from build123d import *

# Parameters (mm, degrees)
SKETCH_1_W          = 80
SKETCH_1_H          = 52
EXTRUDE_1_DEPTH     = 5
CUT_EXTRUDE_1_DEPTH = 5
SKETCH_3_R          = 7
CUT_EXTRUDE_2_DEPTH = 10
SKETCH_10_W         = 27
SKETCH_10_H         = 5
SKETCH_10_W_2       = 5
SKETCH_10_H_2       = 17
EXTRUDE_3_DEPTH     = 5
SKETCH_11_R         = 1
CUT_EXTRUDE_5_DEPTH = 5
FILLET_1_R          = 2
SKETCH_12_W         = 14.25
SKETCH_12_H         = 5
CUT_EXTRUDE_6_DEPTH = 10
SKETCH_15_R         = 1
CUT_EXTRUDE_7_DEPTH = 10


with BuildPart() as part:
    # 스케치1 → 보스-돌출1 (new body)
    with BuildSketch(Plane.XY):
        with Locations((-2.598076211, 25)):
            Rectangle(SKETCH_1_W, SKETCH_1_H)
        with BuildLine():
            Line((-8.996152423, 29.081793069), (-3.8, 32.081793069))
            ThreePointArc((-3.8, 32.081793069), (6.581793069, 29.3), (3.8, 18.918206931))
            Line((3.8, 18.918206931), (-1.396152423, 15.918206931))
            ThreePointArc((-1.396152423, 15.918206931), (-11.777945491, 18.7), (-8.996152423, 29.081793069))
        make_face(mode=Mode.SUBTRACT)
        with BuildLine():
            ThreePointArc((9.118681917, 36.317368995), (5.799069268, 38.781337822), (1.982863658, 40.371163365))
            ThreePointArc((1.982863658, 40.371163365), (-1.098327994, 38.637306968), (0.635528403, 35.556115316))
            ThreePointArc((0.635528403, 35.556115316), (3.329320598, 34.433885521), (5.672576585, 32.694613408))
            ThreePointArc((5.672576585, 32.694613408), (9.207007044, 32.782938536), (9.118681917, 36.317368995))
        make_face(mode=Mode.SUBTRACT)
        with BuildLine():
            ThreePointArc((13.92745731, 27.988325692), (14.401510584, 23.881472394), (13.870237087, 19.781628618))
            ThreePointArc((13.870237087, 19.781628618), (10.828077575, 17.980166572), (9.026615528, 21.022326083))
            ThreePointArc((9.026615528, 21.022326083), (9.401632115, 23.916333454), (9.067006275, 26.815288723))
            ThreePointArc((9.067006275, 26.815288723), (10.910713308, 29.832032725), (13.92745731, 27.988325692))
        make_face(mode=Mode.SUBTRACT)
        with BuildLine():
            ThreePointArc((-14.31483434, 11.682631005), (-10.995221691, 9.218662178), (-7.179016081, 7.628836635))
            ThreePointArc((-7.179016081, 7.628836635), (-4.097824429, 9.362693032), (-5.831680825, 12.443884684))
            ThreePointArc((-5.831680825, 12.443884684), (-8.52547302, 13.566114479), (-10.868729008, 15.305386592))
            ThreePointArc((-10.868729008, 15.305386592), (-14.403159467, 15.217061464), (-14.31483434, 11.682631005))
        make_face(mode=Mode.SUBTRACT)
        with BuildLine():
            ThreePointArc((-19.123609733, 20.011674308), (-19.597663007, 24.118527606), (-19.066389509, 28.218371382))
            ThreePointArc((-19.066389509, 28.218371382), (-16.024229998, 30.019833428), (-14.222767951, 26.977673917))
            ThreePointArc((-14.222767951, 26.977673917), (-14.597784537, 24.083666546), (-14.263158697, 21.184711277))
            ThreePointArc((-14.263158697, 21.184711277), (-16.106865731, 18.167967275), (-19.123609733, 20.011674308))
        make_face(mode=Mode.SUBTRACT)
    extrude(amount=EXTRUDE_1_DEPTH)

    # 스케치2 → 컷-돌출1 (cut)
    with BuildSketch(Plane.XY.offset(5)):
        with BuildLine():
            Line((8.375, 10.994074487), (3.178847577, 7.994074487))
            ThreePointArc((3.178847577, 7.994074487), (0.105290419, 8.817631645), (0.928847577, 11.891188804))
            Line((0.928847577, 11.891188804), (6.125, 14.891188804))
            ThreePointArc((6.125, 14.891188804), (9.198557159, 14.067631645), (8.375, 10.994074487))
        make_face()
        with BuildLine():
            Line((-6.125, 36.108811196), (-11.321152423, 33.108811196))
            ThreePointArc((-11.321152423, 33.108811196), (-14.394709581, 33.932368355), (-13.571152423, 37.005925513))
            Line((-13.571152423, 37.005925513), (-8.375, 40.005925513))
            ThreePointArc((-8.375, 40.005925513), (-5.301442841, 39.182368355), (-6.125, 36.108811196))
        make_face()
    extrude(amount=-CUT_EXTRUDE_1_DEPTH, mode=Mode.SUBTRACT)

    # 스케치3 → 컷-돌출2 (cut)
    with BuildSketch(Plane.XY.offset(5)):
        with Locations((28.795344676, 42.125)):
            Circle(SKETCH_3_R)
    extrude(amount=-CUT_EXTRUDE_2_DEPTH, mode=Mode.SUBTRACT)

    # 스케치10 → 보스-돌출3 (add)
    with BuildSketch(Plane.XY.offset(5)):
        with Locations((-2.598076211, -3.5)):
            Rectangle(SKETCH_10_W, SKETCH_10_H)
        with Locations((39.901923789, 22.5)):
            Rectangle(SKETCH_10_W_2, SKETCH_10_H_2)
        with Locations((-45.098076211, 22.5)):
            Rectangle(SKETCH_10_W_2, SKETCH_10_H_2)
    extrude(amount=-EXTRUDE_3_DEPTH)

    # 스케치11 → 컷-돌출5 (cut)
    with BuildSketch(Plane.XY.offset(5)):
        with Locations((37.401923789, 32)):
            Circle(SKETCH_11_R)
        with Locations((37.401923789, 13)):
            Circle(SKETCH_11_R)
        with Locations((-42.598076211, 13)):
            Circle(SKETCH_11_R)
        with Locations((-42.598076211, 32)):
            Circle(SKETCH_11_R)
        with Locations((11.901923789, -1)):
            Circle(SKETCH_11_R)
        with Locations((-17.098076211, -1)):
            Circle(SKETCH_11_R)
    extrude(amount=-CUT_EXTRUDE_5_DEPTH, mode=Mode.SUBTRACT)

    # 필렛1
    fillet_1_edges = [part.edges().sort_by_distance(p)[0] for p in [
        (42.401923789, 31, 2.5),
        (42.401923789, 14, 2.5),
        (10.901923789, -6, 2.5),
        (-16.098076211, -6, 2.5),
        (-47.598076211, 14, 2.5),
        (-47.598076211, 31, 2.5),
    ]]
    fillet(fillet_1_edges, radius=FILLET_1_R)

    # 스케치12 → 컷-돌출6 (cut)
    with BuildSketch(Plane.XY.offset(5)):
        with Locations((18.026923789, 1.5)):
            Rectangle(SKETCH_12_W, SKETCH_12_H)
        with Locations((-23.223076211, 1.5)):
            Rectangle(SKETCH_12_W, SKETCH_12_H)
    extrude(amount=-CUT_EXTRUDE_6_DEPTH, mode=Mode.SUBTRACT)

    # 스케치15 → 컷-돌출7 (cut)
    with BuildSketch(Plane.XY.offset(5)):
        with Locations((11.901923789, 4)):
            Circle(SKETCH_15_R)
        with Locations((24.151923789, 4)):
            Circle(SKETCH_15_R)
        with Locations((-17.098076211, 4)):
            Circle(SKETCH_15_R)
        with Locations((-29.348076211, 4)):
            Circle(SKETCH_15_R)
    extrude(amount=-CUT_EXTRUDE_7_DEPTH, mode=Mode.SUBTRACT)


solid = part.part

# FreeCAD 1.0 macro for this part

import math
import FreeCAD as App
import Part
import Sketcher
from FreeCAD import Vector
Q = App.Units.Quantity


def edges_at(feature, points):
    """Names of the edges that pass closest to the given points."""
    edges = feature.Shape.Edges
    near = lambda p: min(range(len(edges)), key=lambda i: edges[i].distToShape(Part.Vertex(*p))[0])
    return sorted({f"Edge{near(p) + 1}" for p in points})


def add_polygon(sketch, points):
    """Adds a closed chain of lines whose ends are joined by coincident constraints."""
    first, n = sketch.GeometryCount, len(points)
    for a, b in zip(points, points[1:] + points[:1]):
        sketch.addGeometry(Part.LineSegment(App.Vector(*a, 0), App.Vector(*b, 0)), False)
    for i in range(n):
        sketch.addConstraint(Sketcher.Constraint("Coincident", first + i, 2, first + (i + 1) % n, 1))

doc = App.newDocument("Part")
body = doc.addObject("PartDesign::Body", "Body")

sketch1 = doc.addObject("Sketcher::SketchObject", "Sketch")
body.addObject(sketch1)
sketch1.AttachmentSupport = (doc.XY_Plane, [""])
sketch1.MapMode = "FlatFace"
add_polygon(sketch1, [(-42.598076, 51), (-42.598076, -1), (37.401924, -1), (37.401924, 51)])
sketch1.addGeometry(Part.ArcOfCircle(Part.Circle(Vector(-2.598076, 24, 0), Vector(0, 0, 1), 17), math.radians(-133.568481), math.radians(-105.632556)), False)
sketch1.addGeometry(Part.ArcOfCircle(Part.Circle(Vector(-12.591782, 13.494009, 0), Vector(0, 0, 1), 2.5), math.radians(46.431519), math.radians(226.431519)), False)
sketch1.addGeometry(Part.ArcOfCircle(Part.Circle(Vector(-2.598076, 24, 0), Vector(0, 0, 1), 12), math.radians(-133.568481), math.radians(-105.632556)), False)
sketch1.addGeometry(Part.ArcOfCircle(Part.Circle(Vector(-6.505348, 10.036361, 0), Vector(0, 0, 1), 2.5), math.radians(-105.632556), math.radians(74.367444)), False)
sketch1.addGeometry(Part.ArcOfCircle(Part.Circle(Vector(11.497232, 27.401807, 0), Vector(0, 0, 1), 2.5), math.radians(13.568481), math.radians(193.568481)), False)
sketch1.addGeometry(Part.ArcOfCircle(Part.Circle(Vector(-2.598076, 24, 0), Vector(0, 0, 1), 17), math.radians(-14.367444), math.radians(13.568481)), False)
sketch1.addGeometry(Part.ArcOfCircle(Part.Circle(Vector(11.448426, 20.401977, 0), Vector(0, 0, 1), 2.5), math.radians(165.632556), math.radians(345.632556)), False)
sketch1.addGeometry(Part.ArcOfCircle(Part.Circle(Vector(-2.598076, 24, 0), Vector(0, 0, 1), 12), math.radians(-14.367444), math.radians(13.568481)), False)
sketch1.addGeometry(Part.ArcOfCircle(Part.Circle(Vector(-16.693384, 20.598193, 0), Vector(0, 0, 1), 2.5), math.radians(-166.431519), math.radians(13.568481)), False)
sketch1.addGeometry(Part.ArcOfCircle(Part.Circle(Vector(-2.598076, 24, 0), Vector(0, 0, 1), 17), math.radians(165.632556), math.radians(193.568481)), False)
sketch1.addGeometry(Part.ArcOfCircle(Part.Circle(Vector(-16.644579, 27.598023, 0), Vector(0, 0, 1), 2.5), math.radians(-14.367444), math.radians(165.632556)), False)
sketch1.addGeometry(Part.ArcOfCircle(Part.Circle(Vector(-2.598076, 24, 0), Vector(0, 0, 1), 12), math.radians(165.632556), math.radians(193.568481)), False)
sketch1.addGeometry(Part.ArcOfCircle(Part.Circle(Vector(-5.196152, 22.5, 0), Vector(0, 0, 1), 7.6), math.radians(120), math.radians(300)), False)
sketch1.addGeometry(Part.LineSegment(Vector(-8.996152, 29.081793, 0), Vector(-3.8, 32.081793, 0)), False)
sketch1.addGeometry(Part.ArcOfCircle(Part.Circle(Vector(0, 25.5, 0), Vector(0, 0, 1), 7.6), math.radians(-60), math.radians(120)), False)
sketch1.addGeometry(Part.LineSegment(Vector(3.8, 18.918207, 0), Vector(-1.396152, 15.918207, 0)), False)
sketch1.addGeometry(Part.ArcOfCircle(Part.Circle(Vector(-2.598076, 24, 0), Vector(0, 0, 1), 17), math.radians(46.431519), math.radians(74.367444)), False)
sketch1.addGeometry(Part.ArcOfCircle(Part.Circle(Vector(7.395629, 34.505991, 0), Vector(0, 0, 1), 2.5), math.radians(-133.568481), math.radians(46.431519)), False)
sketch1.addGeometry(Part.ArcOfCircle(Part.Circle(Vector(-2.598076, 24, 0), Vector(0, 0, 1), 12), math.radians(46.431519), math.radians(74.367444)), False)
sketch1.addGeometry(Part.ArcOfCircle(Part.Circle(Vector(1.309196, 37.963639, 0), Vector(0, 0, 1), 2.5), math.radians(74.367444), math.radians(254.367444)), False)
sketch1.addConstraint(Sketcher.Constraint("Tangent", 4, 1, 5, 2))
sketch1.addConstraint(Sketcher.Constraint("Tangent", 5, 1, 6, 1))
sketch1.addConstraint(Sketcher.Constraint("Tangent", 6, 2, 7, 2))
sketch1.addConstraint(Sketcher.Constraint("Tangent", 7, 1, 4, 2))
sketch1.addConstraint(Sketcher.Constraint("Tangent", 8, 1, 9, 2))
sketch1.addConstraint(Sketcher.Constraint("Tangent", 9, 1, 10, 2))
sketch1.addConstraint(Sketcher.Constraint("Tangent", 10, 1, 11, 1))
sketch1.addConstraint(Sketcher.Constraint("Tangent", 11, 2, 8, 2))
sketch1.addConstraint(Sketcher.Constraint("Tangent", 12, 1, 13, 2))
sketch1.addConstraint(Sketcher.Constraint("Tangent", 13, 1, 14, 2))
sketch1.addConstraint(Sketcher.Constraint("Tangent", 14, 1, 15, 1))
sketch1.addConstraint(Sketcher.Constraint("Tangent", 15, 2, 12, 2))
sketch1.addConstraint(Sketcher.Constraint("Tangent", 16, 1, 17, 1))
sketch1.addConstraint(Sketcher.Constraint("Tangent", 17, 2, 18, 2))
sketch1.addConstraint(Sketcher.Constraint("Tangent", 18, 1, 19, 1))
sketch1.addConstraint(Sketcher.Constraint("Tangent", 19, 2, 16, 2))
sketch1.addConstraint(Sketcher.Constraint("Tangent", 20, 1, 21, 2))
sketch1.addConstraint(Sketcher.Constraint("Tangent", 21, 1, 22, 1))
sketch1.addConstraint(Sketcher.Constraint("Tangent", 22, 2, 23, 2))
sketch1.addConstraint(Sketcher.Constraint("Tangent", 23, 1, 20, 2))
sketch1.addConstraint(Sketcher.Constraint("Vertical", 0))
sketch1.addConstraint(Sketcher.Constraint("Horizontal", 1))
sketch1.addConstraint(Sketcher.Constraint("Vertical", 2))
sketch1.addConstraint(Sketcher.Constraint("Horizontal", 3))
sketch1.addConstraint(Sketcher.Constraint("Coincident", 6, 3, 4, 3))
sketch1.addConstraint(Sketcher.Constraint("Coincident", 9, 3, 4, 3))
sketch1.addConstraint(Sketcher.Constraint("Coincident", 11, 3, 4, 3))
sketch1.addConstraint(Sketcher.Constraint("Coincident", 13, 3, 4, 3))
sketch1.addConstraint(Sketcher.Constraint("Coincident", 15, 3, 4, 3))
sketch1.addConstraint(Sketcher.Constraint("Coincident", 20, 3, 4, 3))
sketch1.addConstraint(Sketcher.Constraint("Coincident", 22, 3, 4, 3))
sketch1.addConstraint(Sketcher.Constraint("Equal", 7, 8))
sketch1.addConstraint(Sketcher.Constraint("Equal", 4, 9))
sketch1.addConstraint(Sketcher.Constraint("Equal", 10, 12))
sketch1.addConstraint(Sketcher.Constraint("Equal", 9, 13))
sketch1.addConstraint(Sketcher.Constraint("Equal", 16, 18))
sketch1.addConstraint(Sketcher.Constraint("Equal", 13, 20))
sketch1.addConstraint(Sketcher.Constraint("Equal", 14, 21))
sketch1.addConstraint(Sketcher.Constraint("PointOnObject", 18, 3, -2))
sketch1.addConstraint(Sketcher.Constraint("Radius", 4, Q("17 mm")))
sketch1.addConstraint(Sketcher.Constraint("Radius", 6, Q("12 mm")))
sketch1.addConstraint(Sketcher.Constraint("Radius", 16, Q("7.6 mm")))
sketch1.addConstraint(Sketcher.Constraint("DistanceX", 1, 1, 1, 2, Q("80 mm")))
sketch1.addConstraint(Sketcher.Constraint("DistanceY", 0, 2, 0, 1, Q("52 mm")))
sketch1.addConstraint(Sketcher.Constraint("Angle", 17, Q("30 deg")))
sketch1.addConstraint(Sketcher.Constraint("Distance", 17, Q("6 mm")))
sketch1.addConstraint(Sketcher.Constraint("DistanceY", -1, 1, 4, 3, Q("24 mm")))
sketch1.addConstraint(Sketcher.Constraint("DistanceY", 0, 2, -1, 1, Q("1 mm")))
sketch1.addConstraint(Sketcher.Constraint("DistanceY", -1, 1, 16, 3, Q("22.5 mm")))
sketch1.addConstraint(Sketcher.Constraint("DistanceY", 10, 1, 8, 1, Q("6.966 mm")))
sketch1.addConstraint(Sketcher.Constraint("DistanceY", 12, 1, 14, 1, Q("6.966 mm")))
sketch1.addConstraint(Sketcher.Constraint("DistanceY", 5, 3, 8, 3, Q("13.907798 mm")))
sketch1.addConstraint(Sketcher.Constraint("DistanceY", 6, 2, 5, 1, Q("2.861502 mm")))
sketch1.addConstraint(Sketcher.Constraint("DistanceX", 5, 3, 6, 2, Q("6.760101 mm")))
sketch1.addConstraint(Sketcher.Constraint("DistanceY", 21, 1, 22, 2, Q("2.861502 mm")))
sketch1.addConstraint(Sketcher.Constraint("DistanceX", 22, 2, 21, 3, Q("6.760101 mm")))
sketch1.addConstraint(Sketcher.Constraint("DistanceX", 5, 3, -1, 1, Q("12.591782 mm")))
sketch1.addConstraint(Sketcher.Constraint("DistanceX", 14, 3, -1, 1, Q("16.644579 mm")))
sketch1.addConstraint(Sketcher.Constraint("DistanceX", 0, 2, 12, 3, Q("25.904692 mm")))
pad1 = doc.addObject("PartDesign::Pad", "Pad")
body.addObject(pad1)
pad1.Profile = sketch1
pad1.Length = 5

sketch2 = doc.addObject("Sketcher::SketchObject", "Sketch001")
body.addObject(sketch2)
sketch2.AttachmentSupport = (doc.XY_Plane, [""])
sketch2.MapMode = "FlatFace"
sketch2.AttachmentOffset = App.Placement(Vector(0, 0, 5), App.Rotation())
sketch2.addGeometry(Part.LineSegment(Vector(3.178848, 7.994074, 0), Vector(8.375, 10.994074, 0)), False)
sketch2.addGeometry(Part.ArcOfCircle(Part.Circle(Vector(7.25, 12.942632, 0), Vector(0, 0, 1), 2.25), math.radians(-60), math.radians(120)), False)
sketch2.addGeometry(Part.LineSegment(Vector(6.125, 14.891189, 0), Vector(0.928848, 11.891189, 0)), False)
sketch2.addGeometry(Part.ArcOfCircle(Part.Circle(Vector(2.053848, 9.942632, 0), Vector(0, 0, 1), 2.25), math.radians(120), math.radians(300)), False)
sketch2.addGeometry(Part.LineSegment(Vector(-11.321152, 33.108811, 0), Vector(-6.125, 36.108811, 0)), False)
sketch2.addGeometry(Part.ArcOfCircle(Part.Circle(Vector(-7.25, 38.057368, 0), Vector(0, 0, 1), 2.25), math.radians(-60), math.radians(120)), False)
sketch2.addGeometry(Part.LineSegment(Vector(-8.375, 40.005926, 0), Vector(-13.571152, 37.005926, 0)), False)
sketch2.addGeometry(Part.ArcOfCircle(Part.Circle(Vector(-12.446152, 35.057368, 0), Vector(0, 0, 1), 2.25), math.radians(120), math.radians(300)), False)
sketch2.addConstraint(Sketcher.Constraint("Tangent", 0, 2, 1, 1))
sketch2.addConstraint(Sketcher.Constraint("Tangent", 1, 2, 2, 1))
sketch2.addConstraint(Sketcher.Constraint("Tangent", 2, 2, 3, 1))
sketch2.addConstraint(Sketcher.Constraint("Tangent", 3, 2, 0, 1))
sketch2.addConstraint(Sketcher.Constraint("Tangent", 4, 2, 5, 1))
sketch2.addConstraint(Sketcher.Constraint("Tangent", 5, 2, 6, 1))
sketch2.addConstraint(Sketcher.Constraint("Tangent", 6, 2, 7, 1))
sketch2.addConstraint(Sketcher.Constraint("Tangent", 7, 2, 4, 1))
sketch2.addConstraint(Sketcher.Constraint("Equal", 1, 3))
sketch2.addConstraint(Sketcher.Constraint("Equal", 3, 5))
sketch2.addConstraint(Sketcher.Constraint("Equal", 5, 7))
sketch2.addConstraint(Sketcher.Constraint("Parallel", 2, 4))
sketch2.addConstraint(Sketcher.Constraint("Equal", 2, 4))
sketch2.addConstraint(Sketcher.Constraint("Angle", 0, Q("30 deg")))
sketch2.addConstraint(Sketcher.Constraint("Radius", 1, Q("2.25 mm")))
sketch2.addConstraint(Sketcher.Constraint("Distance", 0, Q("6 mm")))
sketch2.addConstraint(Sketcher.Constraint("DistanceX", 5, 3, 1, 3, Q("14.5 mm")))
sketch2.addConstraint(Sketcher.Constraint("DistanceX", -1, 1, 1, 3, Q("7.25 mm")))
sketch2.addConstraint(Sketcher.Constraint("DistanceY", -1, 1, 1, 3, Q("12.942632 mm")))
sketch2.addConstraint(Sketcher.Constraint("DistanceY", -1, 1, 5, 3, Q("38.057368 mm")))
pocket1 = doc.addObject("PartDesign::Pocket", "Pocket")
body.addObject(pocket1)
pocket1.Profile = sketch2
pocket1.Length = 5

sketch3 = doc.addObject("Sketcher::SketchObject", "Sketch002")
body.addObject(sketch3)
sketch3.AttachmentSupport = (doc.XY_Plane, [""])
sketch3.MapMode = "FlatFace"
sketch3.AttachmentOffset = App.Placement(Vector(0, 0, 5), App.Rotation())
sketch3.addGeometry(Part.Circle(Vector(28.795345, 42.125, 0), Vector(0, 0, 1), 7), False)
sketch3.addConstraint(Sketcher.Constraint("Diameter", 0, Q("14 mm")))
sketch3.addConstraint(Sketcher.Constraint("DistanceY", -1, 1, 0, 3, Q("42.125 mm")))
sketch3.addConstraint(Sketcher.Constraint("DistanceX", -1, 1, 0, 3, Q("28.795345 mm")))
pocket2 = doc.addObject("PartDesign::Pocket", "Pocket001")
body.addObject(pocket2)
pocket2.Profile = sketch3
pocket2.Length = 10

sketch4 = doc.addObject("Sketcher::SketchObject", "Sketch003")
body.addObject(sketch4)
sketch4.AttachmentSupport = (doc.XY_Plane, [""])
sketch4.MapMode = "FlatFace"
sketch4.AttachmentOffset = App.Placement(Vector(0, 0, 5), App.Rotation())
add_polygon(sketch4, [(-16.098076, -1), (-16.098076, -6), (10.901924, -6), (10.901924, -1)])
add_polygon(sketch4, [(37.401924, 31), (37.401924, 14), (42.401924, 14), (42.401924, 31)])
add_polygon(sketch4, [(-47.598076, 31), (-47.598076, 14), (-42.598076, 14), (-42.598076, 31)])
sketch4.addConstraint(Sketcher.Constraint("Vertical", 0))
sketch4.addConstraint(Sketcher.Constraint("Horizontal", 1))
sketch4.addConstraint(Sketcher.Constraint("Vertical", 2))
sketch4.addConstraint(Sketcher.Constraint("Horizontal", 3))
sketch4.addConstraint(Sketcher.Constraint("Vertical", 4))
sketch4.addConstraint(Sketcher.Constraint("Horizontal", 5))
sketch4.addConstraint(Sketcher.Constraint("Vertical", 6))
sketch4.addConstraint(Sketcher.Constraint("Horizontal", 7))
sketch4.addConstraint(Sketcher.Constraint("Vertical", 8))
sketch4.addConstraint(Sketcher.Constraint("Horizontal", 9))
sketch4.addConstraint(Sketcher.Constraint("Vertical", 10))
sketch4.addConstraint(Sketcher.Constraint("Horizontal", 11))
sketch4.addConstraint(Sketcher.Constraint("Horizontal", 5, 2, 8, 2))
sketch4.addConstraint(Sketcher.Constraint("Horizontal", 7, 2, 10, 2))
sketch4.addConstraint(Sketcher.Constraint("Equal", 7, 9))
sketch4.addConstraint(Sketcher.Constraint("Equal", 11, 0))
sketch4.addConstraint(Sketcher.Constraint("DistanceX", 1, 1, 1, 2, Q("27 mm")))
sketch4.addConstraint(Sketcher.Constraint("DistanceX", 5, 1, 5, 2, Q("5 mm")))
sketch4.addConstraint(Sketcher.Constraint("DistanceY", 4, 2, 4, 1, Q("17 mm")))
sketch4.addConstraint(Sketcher.Constraint("DistanceY", 0, 2, -1, 1, Q("6 mm")))
sketch4.addConstraint(Sketcher.Constraint("DistanceY", -1, 1, 4, 2, Q("14 mm")))
sketch4.addConstraint(Sketcher.Constraint("DistanceX", 8, 2, 4, 2, Q("85 mm")))
sketch4.addConstraint(Sketcher.Constraint("DistanceX", 2, 2, 4, 2, Q("26.5 mm")))
sketch4.addConstraint(Sketcher.Constraint("DistanceX", 0, 2, -1, 1, Q("16.098076 mm")))
pad2 = doc.addObject("PartDesign::Pad", "Pad001")
body.addObject(pad2)
pad2.Profile = sketch4
pad2.Length = 5
pad2.Reversed = True

sketch5 = doc.addObject("Sketcher::SketchObject", "Sketch004")
body.addObject(sketch5)
sketch5.AttachmentSupport = (doc.XY_Plane, [""])
sketch5.MapMode = "FlatFace"
sketch5.AttachmentOffset = App.Placement(Vector(0, 0, 5), App.Rotation())
sketch5.addGeometry(Part.Circle(Vector(37.401924, 32, 0), Vector(0, 0, 1), 1), False)
sketch5.addGeometry(Part.Circle(Vector(37.401924, 13, 0), Vector(0, 0, 1), 1), False)
sketch5.addGeometry(Part.Circle(Vector(-42.598076, 13, 0), Vector(0, 0, 1), 1), False)
sketch5.addGeometry(Part.Circle(Vector(-42.598076, 32, 0), Vector(0, 0, 1), 1), False)
sketch5.addGeometry(Part.Circle(Vector(11.901924, -1, 0), Vector(0, 0, 1), 1), False)
sketch5.addGeometry(Part.Circle(Vector(-17.098076, -1, 0), Vector(0, 0, 1), 1), False)
sketch5.addConstraint(Sketcher.Constraint("Equal", 0, 1))
sketch5.addConstraint(Sketcher.Constraint("Equal", 1, 2))
sketch5.addConstraint(Sketcher.Constraint("Equal", 2, 3))
sketch5.addConstraint(Sketcher.Constraint("Equal", 3, 4))
sketch5.addConstraint(Sketcher.Constraint("Equal", 4, 5))
sketch5.addConstraint(Sketcher.Constraint("Horizontal", 1, 3, 2, 3))
sketch5.addConstraint(Sketcher.Constraint("Horizontal", 0, 3, 3, 3))
sketch5.addConstraint(Sketcher.Constraint("Horizontal", 4, 3, 5, 3))
sketch5.addConstraint(Sketcher.Constraint("Vertical", 0, 3, 1, 3))
sketch5.addConstraint(Sketcher.Constraint("Vertical", 2, 3, 3, 3))
sketch5.addConstraint(Sketcher.Constraint("Diameter", 0, Q("2 mm")))
sketch5.addConstraint(Sketcher.Constraint("DistanceY", -1, 1, 0, 3, Q("32 mm")))
sketch5.addConstraint(Sketcher.Constraint("DistanceY", -1, 1, 1, 3, Q("13 mm")))
sketch5.addConstraint(Sketcher.Constraint("DistanceY", 4, 3, -1, 1, Q("1 mm")))
sketch5.addConstraint(Sketcher.Constraint("DistanceX", 2, 3, 1, 3, Q("80 mm")))
sketch5.addConstraint(Sketcher.Constraint("DistanceX", 5, 3, 4, 3, Q("29 mm")))
sketch5.addConstraint(Sketcher.Constraint("DistanceX", 4, 3, 1, 3, Q("25.5 mm")))
sketch5.addConstraint(Sketcher.Constraint("DistanceX", -1, 1, 0, 3, Q("37.401924 mm")))
pocket3 = doc.addObject("PartDesign::Pocket", "Pocket002")
body.addObject(pocket3)
pocket3.Profile = sketch5
pocket3.Length = 5
doc.recompute()

fillet = doc.addObject("PartDesign::Fillet", "Fillet")
body.addObject(fillet)
fillet.Base = (pocket3, edges_at(pocket3, [
    (42.402, 31, 2.5),
    (42.402, 14, 2.5),
    (10.902, -6, 2.5),
    (-16.098, -6, 2.5),
    (-47.598, 14, 2.5),
    (-47.598, 31, 2.5),
]))
fillet.Radius = 2

sketch6 = doc.addObject("Sketcher::SketchObject", "Sketch005")
body.addObject(sketch6)
sketch6.AttachmentSupport = (doc.XY_Plane, [""])
sketch6.MapMode = "FlatFace"
sketch6.AttachmentOffset = App.Placement(Vector(0, 0, 5), App.Rotation())
add_polygon(sketch6, [(10.901924, 4), (10.901924, -1), (25.151924, -1), (25.151924, 4)])
add_polygon(sketch6, [(-30.348076, 4), (-30.348076, -1), (-16.098076, -1), (-16.098076, 4)])
sketch6.addConstraint(Sketcher.Constraint("Vertical", 0))
sketch6.addConstraint(Sketcher.Constraint("Horizontal", 1))
sketch6.addConstraint(Sketcher.Constraint("Vertical", 2))
sketch6.addConstraint(Sketcher.Constraint("Horizontal", 3))
sketch6.addConstraint(Sketcher.Constraint("Vertical", 4))
sketch6.addConstraint(Sketcher.Constraint("Horizontal", 5))
sketch6.addConstraint(Sketcher.Constraint("Vertical", 6))
sketch6.addConstraint(Sketcher.Constraint("Horizontal", 7))
sketch6.addConstraint(Sketcher.Constraint("Horizontal", 1, 2, 4, 2))
sketch6.addConstraint(Sketcher.Constraint("Horizontal", 3, 2, 6, 2))
sketch6.addConstraint(Sketcher.Constraint("Equal", 3, 5))
sketch6.addConstraint(Sketcher.Constraint("DistanceY", 0, 2, 0, 1, Q("5 mm")))
sketch6.addConstraint(Sketcher.Constraint("DistanceY", 0, 2, -1, 1, Q("1 mm")))
sketch6.addConstraint(Sketcher.Constraint("DistanceX", 5, 2, 0, 2, Q("27 mm")))
sketch6.addConstraint(Sketcher.Constraint("DistanceX", 1, 1, 1, 2, Q("14.25 mm")))
sketch6.addConstraint(Sketcher.Constraint("DistanceX", -1, 1, 0, 2, Q("10.901924 mm")))
pocket4 = doc.addObject("PartDesign::Pocket", "Pocket003")
body.addObject(pocket4)
pocket4.Profile = sketch6
pocket4.Length = 10

sketch7 = doc.addObject("Sketcher::SketchObject", "Sketch006")
body.addObject(sketch7)
sketch7.AttachmentSupport = (doc.XY_Plane, [""])
sketch7.MapMode = "FlatFace"
sketch7.AttachmentOffset = App.Placement(Vector(0, 0, 5), App.Rotation())
sketch7.addGeometry(Part.Circle(Vector(11.901924, 4, 0), Vector(0, 0, 1), 1), False)
sketch7.addGeometry(Part.Circle(Vector(24.151924, 4, 0), Vector(0, 0, 1), 1), False)
sketch7.addGeometry(Part.Circle(Vector(-17.098076, 4, 0), Vector(0, 0, 1), 1), False)
sketch7.addGeometry(Part.Circle(Vector(-29.348076, 4, 0), Vector(0, 0, 1), 1), False)
sketch7.addConstraint(Sketcher.Constraint("Equal", 0, 1))
sketch7.addConstraint(Sketcher.Constraint("Equal", 1, 2))
sketch7.addConstraint(Sketcher.Constraint("Equal", 2, 3))
sketch7.addConstraint(Sketcher.Constraint("Horizontal", 0, 3, 1, 3))
sketch7.addConstraint(Sketcher.Constraint("Horizontal", 1, 3, 2, 3))
sketch7.addConstraint(Sketcher.Constraint("Horizontal", 2, 3, 3, 3))
sketch7.addConstraint(Sketcher.Constraint("Diameter", 0, Q("2 mm")))
sketch7.addConstraint(Sketcher.Constraint("DistanceY", -1, 1, 0, 3, Q("4 mm")))
sketch7.addConstraint(Sketcher.Constraint("DistanceX", 2, 3, 0, 3, Q("29 mm")))
sketch7.addConstraint(Sketcher.Constraint("DistanceX", 3, 3, 1, 3, Q("53.5 mm")))
sketch7.addConstraint(Sketcher.Constraint("DistanceX", 0, 3, 1, 3, Q("12.25 mm")))
sketch7.addConstraint(Sketcher.Constraint("DistanceX", -1, 1, 0, 3, Q("11.901924 mm")))
pocket5 = doc.addObject("PartDesign::Pocket", "Pocket004")
body.addObject(pocket5)
pocket5.Profile = sketch7
pocket5.Length = 10

doc.recompute()
